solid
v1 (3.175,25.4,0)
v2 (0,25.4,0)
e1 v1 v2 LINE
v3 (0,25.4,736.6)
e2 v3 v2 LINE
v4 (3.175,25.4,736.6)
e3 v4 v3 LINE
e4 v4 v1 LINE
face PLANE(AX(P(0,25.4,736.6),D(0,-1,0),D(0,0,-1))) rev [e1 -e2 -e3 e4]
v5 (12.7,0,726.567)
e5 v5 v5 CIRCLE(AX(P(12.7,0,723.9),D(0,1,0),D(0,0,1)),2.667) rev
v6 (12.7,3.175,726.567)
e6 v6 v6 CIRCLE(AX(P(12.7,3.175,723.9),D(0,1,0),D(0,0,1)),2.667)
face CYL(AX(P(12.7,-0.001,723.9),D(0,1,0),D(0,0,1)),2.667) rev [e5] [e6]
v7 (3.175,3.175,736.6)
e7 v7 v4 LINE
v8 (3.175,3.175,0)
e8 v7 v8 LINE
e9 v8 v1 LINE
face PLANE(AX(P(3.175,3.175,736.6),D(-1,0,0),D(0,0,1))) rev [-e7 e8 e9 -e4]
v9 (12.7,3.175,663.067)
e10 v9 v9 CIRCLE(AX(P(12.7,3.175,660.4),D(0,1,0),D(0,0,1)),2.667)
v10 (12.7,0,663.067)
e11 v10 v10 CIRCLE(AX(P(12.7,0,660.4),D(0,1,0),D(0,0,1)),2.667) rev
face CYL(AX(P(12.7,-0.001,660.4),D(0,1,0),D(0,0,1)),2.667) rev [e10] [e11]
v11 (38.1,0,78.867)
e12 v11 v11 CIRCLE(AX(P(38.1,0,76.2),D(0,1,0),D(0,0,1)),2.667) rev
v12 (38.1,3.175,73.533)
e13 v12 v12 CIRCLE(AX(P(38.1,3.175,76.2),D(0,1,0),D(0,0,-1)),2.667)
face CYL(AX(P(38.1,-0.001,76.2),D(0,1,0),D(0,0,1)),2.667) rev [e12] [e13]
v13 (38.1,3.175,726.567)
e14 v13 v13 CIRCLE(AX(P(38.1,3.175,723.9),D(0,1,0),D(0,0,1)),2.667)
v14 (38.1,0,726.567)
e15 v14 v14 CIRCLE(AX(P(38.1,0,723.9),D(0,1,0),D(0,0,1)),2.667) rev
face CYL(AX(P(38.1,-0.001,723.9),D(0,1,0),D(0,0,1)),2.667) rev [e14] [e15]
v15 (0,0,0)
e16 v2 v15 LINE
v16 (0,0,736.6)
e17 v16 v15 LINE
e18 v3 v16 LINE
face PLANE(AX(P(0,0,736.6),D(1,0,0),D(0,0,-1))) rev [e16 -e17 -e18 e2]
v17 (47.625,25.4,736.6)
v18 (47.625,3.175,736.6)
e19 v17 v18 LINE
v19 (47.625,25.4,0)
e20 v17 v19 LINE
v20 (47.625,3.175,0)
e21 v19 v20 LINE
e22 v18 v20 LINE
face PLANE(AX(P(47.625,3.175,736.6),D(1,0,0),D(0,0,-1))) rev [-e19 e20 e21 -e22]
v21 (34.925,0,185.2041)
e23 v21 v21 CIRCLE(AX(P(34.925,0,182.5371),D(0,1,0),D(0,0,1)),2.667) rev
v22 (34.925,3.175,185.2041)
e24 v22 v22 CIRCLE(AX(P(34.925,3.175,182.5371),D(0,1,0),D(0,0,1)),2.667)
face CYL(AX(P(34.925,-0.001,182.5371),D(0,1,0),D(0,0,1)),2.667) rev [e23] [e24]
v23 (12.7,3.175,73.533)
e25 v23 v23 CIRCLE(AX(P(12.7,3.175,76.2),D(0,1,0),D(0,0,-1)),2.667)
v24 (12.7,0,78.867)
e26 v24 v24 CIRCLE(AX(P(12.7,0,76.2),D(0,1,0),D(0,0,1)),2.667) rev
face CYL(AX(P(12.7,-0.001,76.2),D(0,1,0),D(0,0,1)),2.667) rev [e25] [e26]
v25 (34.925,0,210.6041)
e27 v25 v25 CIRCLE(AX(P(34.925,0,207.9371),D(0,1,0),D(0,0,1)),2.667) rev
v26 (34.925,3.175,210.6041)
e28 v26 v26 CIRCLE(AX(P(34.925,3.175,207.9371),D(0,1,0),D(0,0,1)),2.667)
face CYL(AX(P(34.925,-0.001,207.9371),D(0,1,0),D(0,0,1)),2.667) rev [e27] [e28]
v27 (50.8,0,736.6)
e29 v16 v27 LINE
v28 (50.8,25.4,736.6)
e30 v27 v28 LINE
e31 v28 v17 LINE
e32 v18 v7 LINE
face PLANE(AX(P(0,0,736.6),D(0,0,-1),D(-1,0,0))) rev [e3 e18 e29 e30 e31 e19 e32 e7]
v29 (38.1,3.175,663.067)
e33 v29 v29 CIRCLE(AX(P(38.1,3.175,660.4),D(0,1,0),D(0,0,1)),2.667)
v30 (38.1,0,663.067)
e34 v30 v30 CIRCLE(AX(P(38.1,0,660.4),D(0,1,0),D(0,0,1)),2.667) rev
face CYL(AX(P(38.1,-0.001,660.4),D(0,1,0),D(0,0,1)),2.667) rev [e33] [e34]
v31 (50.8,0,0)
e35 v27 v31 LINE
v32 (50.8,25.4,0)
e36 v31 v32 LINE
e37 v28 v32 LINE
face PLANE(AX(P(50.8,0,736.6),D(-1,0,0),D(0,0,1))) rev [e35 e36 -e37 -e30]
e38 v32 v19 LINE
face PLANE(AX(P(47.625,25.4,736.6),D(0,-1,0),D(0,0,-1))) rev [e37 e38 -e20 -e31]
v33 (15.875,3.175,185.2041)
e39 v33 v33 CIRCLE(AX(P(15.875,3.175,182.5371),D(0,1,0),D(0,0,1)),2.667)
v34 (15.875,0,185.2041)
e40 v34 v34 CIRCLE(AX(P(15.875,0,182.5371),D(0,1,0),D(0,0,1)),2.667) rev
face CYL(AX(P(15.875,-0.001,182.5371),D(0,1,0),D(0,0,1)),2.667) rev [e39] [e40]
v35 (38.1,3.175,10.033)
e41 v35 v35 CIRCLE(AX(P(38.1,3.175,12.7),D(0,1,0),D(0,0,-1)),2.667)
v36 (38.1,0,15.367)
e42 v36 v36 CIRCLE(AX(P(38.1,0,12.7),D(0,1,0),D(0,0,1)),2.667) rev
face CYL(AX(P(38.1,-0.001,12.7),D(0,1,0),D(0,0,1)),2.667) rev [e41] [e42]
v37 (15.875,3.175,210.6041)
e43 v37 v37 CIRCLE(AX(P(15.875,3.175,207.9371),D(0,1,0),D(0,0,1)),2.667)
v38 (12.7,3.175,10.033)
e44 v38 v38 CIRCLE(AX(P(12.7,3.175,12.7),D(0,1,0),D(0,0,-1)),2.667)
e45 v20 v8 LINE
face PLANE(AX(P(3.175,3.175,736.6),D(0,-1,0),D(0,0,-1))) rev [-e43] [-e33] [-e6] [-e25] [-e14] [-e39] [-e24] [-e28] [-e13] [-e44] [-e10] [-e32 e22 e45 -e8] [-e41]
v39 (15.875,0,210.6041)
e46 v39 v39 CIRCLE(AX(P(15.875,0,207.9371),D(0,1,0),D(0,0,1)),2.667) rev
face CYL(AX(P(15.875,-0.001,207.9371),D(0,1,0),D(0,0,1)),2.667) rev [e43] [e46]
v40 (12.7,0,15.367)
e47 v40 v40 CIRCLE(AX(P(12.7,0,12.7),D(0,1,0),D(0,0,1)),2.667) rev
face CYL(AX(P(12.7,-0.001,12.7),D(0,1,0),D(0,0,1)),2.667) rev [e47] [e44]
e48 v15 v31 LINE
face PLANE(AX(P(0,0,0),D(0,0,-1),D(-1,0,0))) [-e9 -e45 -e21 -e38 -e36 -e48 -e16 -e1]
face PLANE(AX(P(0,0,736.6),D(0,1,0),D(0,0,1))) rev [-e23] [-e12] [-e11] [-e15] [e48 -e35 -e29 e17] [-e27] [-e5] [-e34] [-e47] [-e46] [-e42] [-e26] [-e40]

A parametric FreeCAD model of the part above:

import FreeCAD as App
import Part
import Sketcher
from FreeCAD import Vector
Q = App.Units.Quantity


def add_polygon(sketch, points):
    """Adds a closed chain of lines whose ends are joined by coincident constraints."""
    first, n = sketch.GeometryCount, len(points)
    for a, b in zip(points, points[1:] + points[:1]):
        sketch.addGeometry(Part.LineSegment(App.Vector(*a, 0), App.Vector(*b, 0)), False)
    for i in range(n):
        sketch.addConstraint(Sketcher.Constraint("Coincident", first + i, 2, first + (i + 1) % n, 1))

doc = App.newDocument("Part")
body = doc.addObject("PartDesign::Body", "Body")

sketch1 = body.newObject("Sketcher::SketchObject", "Sketch")
sketch1.AttachmentSupport = (doc.getObject("XY_Plane"), [""])
sketch1.MapMode = "FlatFace"
add_polygon(sketch1, [(3.2, 3.2), (3.2, 25.4), (0, 25.4), (0, 0), (50.8, 0), (50.8, 25.4), (47.6, 25.4), (47.6, 3.2)])
sketch1.addConstraint([
    Sketcher.Constraint("Vertical", 0),
    Sketcher.Constraint("Horizontal", 1),
    Sketcher.Constraint("Vertical", 2),
    Sketcher.Constraint("Horizontal", 3),
    Sketcher.Constraint("Vertical", 4),
    Sketcher.Constraint("Horizontal", 5),
    Sketcher.Constraint("Vertical", 6),
    Sketcher.Constraint("Horizontal", 7),
    Sketcher.Constraint("Coincident", 2, 2, -1, 1),
    Sketcher.Constraint("Horizontal", 1, 2, 4, 2),
    Sketcher.Constraint("Equal", 1, 5),
    Sketcher.Constraint("DistanceX", 3, 1, 3, 2, Q("2 in")),
    Sketcher.Constraint("DistanceY", 2, 2, 2, 1, Q("1 in")),
    Sketcher.Constraint("DistanceX", 7, 2, 7, 1, Q("1.75 in")),
    Sketcher.Constraint("DistanceY", 0, 1, 0, 2, Q("0.875 in")),
])
pad1 = body.newObject("PartDesign::Pad", "Pad")
pad1.Profile = sketch1
pad1.Length = Q("29 in")

sketch2 = body.newObject("Sketcher::SketchObject", "Sketch001")
sketch2.AttachmentSupport = (doc.getObject("XZ_Plane"), [""])
sketch2.MapMode = "FlatFace"
sketch2.AttachmentOffset = App.Placement(Vector(0, 0, -0.125 * 25.4), App.Rotation())
sketch2.addGeometry(Part.Circle(Vector(12.7, 723.9, 0), Vector(0, 0, 1), 2.7), False)
sketch2.addConstraint([
    Sketcher.Constraint("Diameter", 0, Q("0.21 in")),
    Sketcher.Constraint("DistanceX", -1, 1, 0, 3, Q("0.5 in")),
    Sketcher.Constraint("DistanceY", -1, 1, 0, 3, Q("28.5 in")),
])
pocket1 = body.newObject("PartDesign::Pocket", "Pocket")
pocket1.Profile = sketch2
pocket1.Type = "UpToFirst"
pocket1.Reversed = True

sketch3 = body.newObject("Sketcher::SketchObject", "Sketch002")
sketch3.AttachmentSupport = (doc.getObject("XZ_Plane"), [""])
sketch3.MapMode = "FlatFace"
sketch3.AttachmentOffset = App.Placement(Vector(0, 0, -0.125 * 25.4), App.Rotation())
sketch3.addGeometry(Part.Circle(Vector(12.7, 660.4, 0), Vector(0, 0, 1), 2.7), False)
sketch3.addConstraint([
    Sketcher.Constraint("Diameter", 0, Q("0.21 in")),
    Sketcher.Constraint("DistanceY", -1, 1, 0, 3, Q("26 in")),
    Sketcher.Constraint("DistanceX", -1, 1, 0, 3, Q("0.5 in")),
])
pocket2 = body.newObject("PartDesign::Pocket", "Pocket001")
pocket2.Profile = sketch3
pocket2.Type = "UpToFirst"
pocket2.Reversed = True

sketch4 = body.newObject("Sketcher::SketchObject", "Sketch003")
sketch4.AttachmentSupport = (doc.getObject("XZ_Plane"), [""])
sketch4.MapMode = "FlatFace"
sketch4.AttachmentOffset = App.Placement(Vector(0, 0, -0.125 * 25.4), App.Rotation())
sketch4.addGeometry(Part.Circle(Vector(38.1, 660.4, 0), Vector(0, 0, 1), 2.7), False)
sketch4.addConstraint([
    Sketcher.Constraint("Diameter", 0, Q("0.21 in")),
    Sketcher.Constraint("DistanceY", -1, 1, 0, 3, Q("26 in")),
    Sketcher.Constraint("DistanceX", -1, 1, 0, 3, Q("1.5 in")),
])
pocket3 = body.newObject("PartDesign::Pocket", "Pocket002")
pocket3.Profile = sketch4
pocket3.Type = "UpToFirst"
pocket3.Reversed = True

sketch5 = body.newObject("Sketcher::SketchObject", "Sketch004")
sketch5.AttachmentSupport = (doc.getObject("XZ_Plane"), [""])
sketch5.MapMode = "FlatFace"
sketch5.AttachmentOffset = App.Placement(Vector(0, 0, -0.125 * 25.4), App.Rotation())
sketch5.addGeometry(Part.Circle(Vector(38.1, 723.9, 0), Vector(0, 0, 1), 2.7), False)
sketch5.addConstraint([
    Sketcher.Constraint("Diameter", 0, Q("0.21 in")),
    Sketcher.Constraint("DistanceX", -1, 1, 0, 3, Q("1.5 in")),
    Sketcher.Constraint("DistanceY", -1, 1, 0, 3, Q("28.5 in")),
])
pocket4 = body.newObject("PartDesign::Pocket", "Pocket003")
pocket4.Profile = sketch5
pocket4.Type = "UpToFirst"
pocket4.Reversed = True

sketch6 = body.newObject("Sketcher::SketchObject", "Sketch005")
sketch6.AttachmentSupport = (doc.getObject("XZ_Plane"), [""])
sketch6.MapMode = "FlatFace"
sketch6.AttachmentOffset = App.Placement(Vector(0, 0, -0.125 * 25.4), App.Rotation())
sketch6.addGeometry(Part.Circle(Vector(38.1, 12.7, 0), Vector(0, 0, 1), 2.7), False)
sketch6.addConstraint([
    Sketcher.Constraint("Diameter", 0, Q("0.21 in")),
    Sketcher.Constraint("DistanceX", -1, 1, 0, 3, Q("1.5 in")),
    Sketcher.Constraint("DistanceY", -1, 1, 0, 3, Q("0.5 in")),
])
pocket5 = body.newObject("PartDesign::Pocket", "Pocket004")
pocket5.Profile = sketch6
pocket5.Type = "UpToFirst"
pocket5.Reversed = True

sketch7 = body.newObject("Sketcher::SketchObject", "Sketch006")
sketch7.AttachmentSupport = (doc.getObject("XZ_Plane"), [""])
sketch7.MapMode = "FlatFace"
sketch7.AttachmentOffset = App.Placement(Vector(0, 0, -0.125 * 25.4), App.Rotation())
sketch7.addGeometry(Part.Circle(Vector(38.1, 76.2, 0), Vector(0, 0, 1), 2.7), False)
sketch7.addConstraint([
    Sketcher.Constraint("Diameter", 0, Q("0.21 in")),
    Sketcher.Constraint("DistanceY", -1, 1, 0, 3, Q("3 in")),
    Sketcher.Constraint("DistanceX", -1, 1, 0, 3, Q("1.5 in")),
])
pocket6 = body.newObject("PartDesign::Pocket", "Pocket005")
pocket6.Profile = sketch7
pocket6.Type = "UpToFirst"
pocket6.Reversed = True

sketch8 = body.newObject("Sketcher::SketchObject", "Sketch007")
sketch8.AttachmentSupport = (doc.getObject("XZ_Plane"), [""])
sketch8.MapMode = "FlatFace"
sketch8.AttachmentOffset = App.Placement(Vector(0, 0, -0.125 * 25.4), App.Rotation())
sketch8.addGeometry(Part.Circle(Vector(12.7, 12.7, 0), Vector(0, 0, 1), 2.7), False)
sketch8.addConstraint([
    Sketcher.Constraint("Diameter", 0, Q("0.21 in")),
    Sketcher.Constraint("DistanceX", -1, 1, 0, 3, Q("0.5 in")),
    Sketcher.Constraint("DistanceY", -1, 1, 0, 3, Q("0.5 in")),
])
pocket7 = body.newObject("PartDesign::Pocket", "Pocket006")
pocket7.Profile = sketch8
pocket7.Type = "UpToFirst"
pocket7.Reversed = True

sketch9 = body.newObject("Sketcher::SketchObject", "Sketch008")
sketch9.AttachmentSupport = (doc.getObject("XZ_Plane"), [""])
sketch9.MapMode = "FlatFace"
sketch9.AttachmentOffset = App.Placement(Vector(0, 0, -0.125 * 25.4), App.Rotation())
sketch9.addGeometry(Part.Circle(Vector(12.7, 76.2, 0), Vector(0, 0, 1), 2.7), False)
sketch9.addConstraint([
    Sketcher.Constraint("Diameter", 0, Q("0.21 in")),
    Sketcher.Constraint("DistanceY", -1, 1, 0, 3, Q("3 in")),
    Sketcher.Constraint("DistanceX", -1, 1, 0, 3, Q("0.5 in")),
])
pocket8 = body.newObject("PartDesign::Pocket", "Pocket007")
pocket8.Profile = sketch9
pocket8.Type = "UpToFirst"
pocket8.Reversed = True

sketch10 = body.newObject("Sketcher::SketchObject", "Sketch009")
sketch10.AttachmentSupport = (doc.getObject("XZ_Plane"), [""])
sketch10.MapMode = "FlatFace"
sketch10.AttachmentOffset = App.Placement(Vector(0, 0, -0.125 * 25.4), App.Rotation())
sketch10.addGeometry(Part.Circle(Vector(34.9, 207.9, 0), Vector(0, 0, 1), 2.7), False)
sketch10.addConstraint([
    Sketcher.Constraint("Diameter", 0, Q("0.21 in")),
    Sketcher.Constraint("DistanceX", -1, 1, 0, 3, Q("1.375 in")),
    Sketcher.Constraint("DistanceY", -1, 1, 0, 3, Q("8.1865 in")),
])
pocket9 = body.newObject("PartDesign::Pocket", "Pocket008")
pocket9.Profile = sketch10
pocket9.Type = "UpToFirst"
pocket9.Reversed = True

sketch11 = body.newObject("Sketcher::SketchObject", "Sketch010")
sketch11.AttachmentSupport = (doc.getObject("XZ_Plane"), [""])
sketch11.MapMode = "FlatFace"
sketch11.AttachmentOffset = App.Placement(Vector(0, 0, -0.125 * 25.4), App.Rotation())
sketch11.addGeometry(Part.Circle(Vector(15.9, 207.9, 0), Vector(0, 0, 1), 2.7), False)
sketch11.addConstraint([
    Sketcher.Constraint("Diameter", 0, Q("0.21 in")),
    Sketcher.Constraint("DistanceX", -1, 1, 0, 3, Q("0.625 in")),
    Sketcher.Constraint("DistanceY", -1, 1, 0, 3, Q("8.1865 in")),
])
pocket10 = body.newObject("PartDesign::Pocket", "Pocket009")
pocket10.Profile = sketch11
pocket10.Type = "UpToFirst"
pocket10.Reversed = True

sketch12 = body.newObject("Sketcher::SketchObject", "Sketch011")
sketch12.AttachmentSupport = (doc.getObject("XZ_Plane"), [""])
sketch12.MapMode = "FlatFace"
sketch12.AttachmentOffset = App.Placement(Vector(0, 0, -0.125 * 25.4), App.Rotation())
sketch12.addGeometry(Part.Circle(Vector(34.9, 182.5, 0), Vector(0, 0, 1), 2.7), False)
sketch12.addConstraint([
    Sketcher.Constraint("Diameter", 0, Q("0.21 in")),
    Sketcher.Constraint("DistanceX", -1, 1, 0, 3, Q("1.375 in")),
    Sketcher.Constraint("DistanceY", -1, 1, 0, 3, Q("7.1865 in")),
])
pocket11 = body.newObject("PartDesign::Pocket", "Pocket010")
pocket11.Profile = sketch12
pocket11.Type = "UpToFirst"
pocket11.Reversed = True

sketch13 = body.newObject("Sketcher::SketchObject", "Sketch012")
sketch13.AttachmentSupport = (doc.getObject("XZ_Plane"), [""])
sketch13.MapMode = "FlatFace"
sketch13.AttachmentOffset = App.Placement(Vector(0, 0, -0.125 * 25.4), App.Rotation())
sketch13.addGeometry(Part.Circle(Vector(15.9, 182.5, 0), Vector(0, 0, 1), 2.7), False)
sketch13.addConstraint([
    Sketcher.Constraint("Diameter", 0, Q("0.21 in")),
    Sketcher.Constraint("DistanceX", -1, 1, 0, 3, Q("0.625 in")),
    Sketcher.Constraint("DistanceY", -1, 1, 0, 3, Q("7.1865 in")),
])
pocket12 = body.newObject("PartDesign::Pocket", "Pocket011")
pocket12.Profile = sketch13
pocket12.Type = "UpToFirst"
pocket12.Reversed = True

doc.recompute()
